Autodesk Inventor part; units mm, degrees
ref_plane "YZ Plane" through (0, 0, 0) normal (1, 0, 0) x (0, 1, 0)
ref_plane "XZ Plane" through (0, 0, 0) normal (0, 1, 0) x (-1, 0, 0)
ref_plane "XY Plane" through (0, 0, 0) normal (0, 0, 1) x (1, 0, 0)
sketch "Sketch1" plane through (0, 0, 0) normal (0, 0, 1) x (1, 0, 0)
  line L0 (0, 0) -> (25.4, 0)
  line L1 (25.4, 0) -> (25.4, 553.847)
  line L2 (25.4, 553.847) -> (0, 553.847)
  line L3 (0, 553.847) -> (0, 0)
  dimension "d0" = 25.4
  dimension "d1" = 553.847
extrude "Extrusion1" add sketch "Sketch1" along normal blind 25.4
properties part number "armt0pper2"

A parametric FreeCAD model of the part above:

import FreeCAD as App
import Part
import Sketcher
from FreeCAD import Vector
Q = App.Units.Quantity

doc = App.newDocument("Part")
body = doc.addObject("PartDesign::Body", "Body")

# Sketch on XY plane
sketch1 = body.newObject("Sketcher::SketchObject", "Sketch")
sketch1.AttachmentSupport = (doc.getObject("XY_Plane"), [""])
sketch1.MapMode = "FlatFace"
sketch1.addGeometry([
    Part.LineSegment(Vector(0, 554, 0), Vector(0, 0, 0)),
    Part.LineSegment(Vector(0, 0, 0), Vector(25, 0, 0)),
    Part.LineSegment(Vector(25, 0, 0), Vector(25, 554, 0)),
    Part.LineSegment(Vector(25, 554, 0), Vector(0, 554, 0)),
], False)
sketch1.addConstraint([
    Sketcher.Constraint("Coincident", 0, 2, 1, 1),
    Sketcher.Constraint("Coincident", 1, 2, 2, 1),
    Sketcher.Constraint("Coincident", 2, 2, 3, 1),
    Sketcher.Constraint("Coincident", 3, 2, 0, 1),
    Sketcher.Constraint("Vertical", 0),
    Sketcher.Constraint("Horizontal", 1),
    Sketcher.Constraint("Vertical", 2),
    Sketcher.Constraint("Horizontal", 3),
    Sketcher.Constraint("Coincident", 0, 2, -1, 1),
    Sketcher.Constraint("DistanceX", 1, 1, 1, 2, Q("1 in")),
    Sketcher.Constraint("DistanceY", 0, 2, 0, 1, Q("21.805 in")),
])
pad1 = body.newObject("PartDesign::Pad", "Pad")
pad1.Profile = sketch1
pad1.Length = Q("1 in")

doc.recompute()
